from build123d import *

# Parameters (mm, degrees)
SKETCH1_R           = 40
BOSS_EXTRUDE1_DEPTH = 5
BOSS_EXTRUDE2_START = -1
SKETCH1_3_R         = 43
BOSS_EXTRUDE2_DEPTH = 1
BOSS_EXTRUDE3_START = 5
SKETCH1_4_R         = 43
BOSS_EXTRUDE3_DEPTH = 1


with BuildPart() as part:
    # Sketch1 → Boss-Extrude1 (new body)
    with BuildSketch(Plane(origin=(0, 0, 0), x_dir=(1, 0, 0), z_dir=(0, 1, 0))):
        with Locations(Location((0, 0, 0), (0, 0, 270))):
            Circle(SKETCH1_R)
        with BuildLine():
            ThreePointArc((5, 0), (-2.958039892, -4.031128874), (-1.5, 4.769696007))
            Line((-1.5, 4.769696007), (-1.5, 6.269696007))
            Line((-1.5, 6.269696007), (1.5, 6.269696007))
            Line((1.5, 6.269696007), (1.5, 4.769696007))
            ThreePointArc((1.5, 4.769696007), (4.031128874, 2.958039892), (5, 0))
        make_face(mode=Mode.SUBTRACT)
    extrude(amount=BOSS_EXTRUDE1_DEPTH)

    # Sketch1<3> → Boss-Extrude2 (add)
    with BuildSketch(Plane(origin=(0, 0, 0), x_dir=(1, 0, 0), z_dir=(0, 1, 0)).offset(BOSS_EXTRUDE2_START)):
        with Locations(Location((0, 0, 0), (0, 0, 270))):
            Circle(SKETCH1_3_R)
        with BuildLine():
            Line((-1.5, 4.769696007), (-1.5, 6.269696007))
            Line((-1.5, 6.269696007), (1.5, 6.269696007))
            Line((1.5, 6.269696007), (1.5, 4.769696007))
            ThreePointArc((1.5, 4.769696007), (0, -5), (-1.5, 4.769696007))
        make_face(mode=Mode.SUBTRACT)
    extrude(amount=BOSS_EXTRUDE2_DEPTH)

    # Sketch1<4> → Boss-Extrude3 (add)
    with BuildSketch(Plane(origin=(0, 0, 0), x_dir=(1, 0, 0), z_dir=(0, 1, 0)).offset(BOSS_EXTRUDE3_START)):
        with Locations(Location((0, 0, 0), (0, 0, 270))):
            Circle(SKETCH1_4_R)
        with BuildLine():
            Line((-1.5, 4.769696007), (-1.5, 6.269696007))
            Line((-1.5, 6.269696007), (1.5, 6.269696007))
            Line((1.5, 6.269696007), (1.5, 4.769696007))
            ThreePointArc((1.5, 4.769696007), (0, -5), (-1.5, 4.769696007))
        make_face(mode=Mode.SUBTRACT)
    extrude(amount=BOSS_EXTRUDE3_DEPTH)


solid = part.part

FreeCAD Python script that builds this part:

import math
import FreeCAD as App
import Part
import Sketcher
from FreeCAD import Vector

doc = App.newDocument("Part")
body = doc.addObject("PartDesign::Body", "Body")

sketch1 = body.newObject("Sketcher::SketchObject", "Sketch")
sketch1.AttachmentSupport = (doc.getObject("XZ_Plane"), [""])
sketch1.MapMode = "FlatFace"
sketch1.addGeometry([
    Part.Circle(Vector(0, 0, 0), Vector(0, 0, 1), 40),
    Part.ArcOfCircle(Part.Circle(Vector(0, 0, 0), Vector(0, 0, 1), 5), math.radians(-73), math.radians(0)),
    Part.ArcOfCircle(Part.Circle(Vector(0, 0, 0), Vector(0, 0, 1), 5), math.radians(0), math.radians(253)),
    Part.LineSegment(Vector(-1.5, -4.8, 0), Vector(-1.5, -6.3, 0)),
    Part.LineSegment(Vector(-1.5, -6.3, 0), Vector(1.5, -6.3, 0)),
    Part.LineSegment(Vector(1.5, -6.3, 0), Vector(1.5, -4.8, 0)),
], False)
sketch1.addConstraint([
    Sketcher.Constraint("Tangent", 1, 2, 2, 1),
    Sketcher.Constraint("Coincident", 2, 2, 3, 1),
    Sketcher.Constraint("Coincident", 3, 2, 4, 1),
    Sketcher.Constraint("Coincident", 4, 2, 5, 1),
    Sketcher.Constraint("Coincident", 5, 2, 1, 1),
    Sketcher.Constraint("Vertical", 3),
    Sketcher.Constraint("Horizontal", 4),
    Sketcher.Constraint("Vertical", 5),
    Sketcher.Constraint("Coincident", 0, 3, -1, 1),
    Sketcher.Constraint("Coincident", 1, 3, -1, 1),
    Sketcher.Constraint("Equal", 1, 2),
    Sketcher.Constraint("PointOnObject", 1, 2, -1),
    Sketcher.Constraint("Horizontal", 2, 2, 5, 2),
    Sketcher.Constraint("Diameter", 0, 80.0),
    Sketcher.Constraint("Radius", 1, 5.0),
    Sketcher.Constraint("DistanceX", 4, 1, 4, 2, 3.0),
    Sketcher.Constraint("DistanceY", 3, 2, 3, 1, 1.5),
])
pad1 = body.newObject("PartDesign::Pad", "Pad")
pad1.Profile = sketch1
pad1.Length = 5
pad1.Reversed = True

sketch2 = body.newObject("Sketcher::SketchObject", "Sketch001")
sketch2.AttachmentSupport = (doc.getObject("XZ_Plane"), [""])
sketch2.MapMode = "FlatFace"
sketch2.AttachmentOffset = App.Placement(Vector(0, 0, 1), App.Rotation())
sketch2.addGeometry([
    Part.Circle(Vector(0, 0, 0), Vector(0, 0, 1), 43),
    Part.ArcOfCircle(Part.Circle(Vector(0, 0, 0), Vector(0, 0, 1), 5), math.radians(-73), math.radians(253)),
    Part.LineSegment(Vector(-1.5, -4.8, 0), Vector(-1.5, -6.3, 0)),
    Part.LineSegment(Vector(-1.5, -6.3, 0), Vector(1.5, -6.3, 0)),
    Part.LineSegment(Vector(1.5, -6.3, 0), Vector(1.5, -4.8, 0)),
], False)
sketch2.addConstraint([
    Sketcher.Constraint("Coincident", 1, 2, 2, 1),
    Sketcher.Constraint("Coincident", 2, 2, 3, 1),
    Sketcher.Constraint("Coincident", 3, 2, 4, 1),
    Sketcher.Constraint("Coincident", 4, 2, 1, 1),
    Sketcher.Constraint("Vertical", 2),
    Sketcher.Constraint("Horizontal", 3),
    Sketcher.Constraint("Vertical", 4),
    Sketcher.Constraint("Coincident", 0, 3, -1, 1),
    Sketcher.Constraint("Coincident", 1, 3, -1, 1),
    Sketcher.Constraint("Horizontal", 1, 2, 4, 2),
    Sketcher.Constraint("Diameter", 0, 86.0),
    Sketcher.Constraint("Radius", 1, 5.0),
    Sketcher.Constraint("DistanceX", 3, 1, 3, 2, 3.0),
    Sketcher.Constraint("DistanceY", 2, 2, 2, 1, 1.5),
])
pad2 = body.newObject("PartDesign::Pad", "Pad001")
pad2.Profile = sketch2
pad2.Length = 1
pad2.Reversed = True

sketch3 = body.newObject("Sketcher::SketchObject", "Sketch002")
sketch3.AttachmentSupport = (doc.getObject("XZ_Plane"), [""])
sketch3.MapMode = "FlatFace"
sketch3.AttachmentOffset = App.Placement(Vector(0, 0, -5), App.Rotation())
sketch3.addGeometry([
    Part.Circle(Vector(0, 0, 0), Vector(0, 0, 1), 43),
    Part.ArcOfCircle(Part.Circle(Vector(0, 0, 0), Vector(0, 0, 1), 5), math.radians(-73), math.radians(253)),
    Part.LineSegment(Vector(-1.5, -4.8, 0), Vector(-1.5, -6.3, 0)),
    Part.LineSegment(Vector(-1.5, -6.3, 0), Vector(1.5, -6.3, 0)),
    Part.LineSegment(Vector(1.5, -6.3, 0), Vector(1.5, -4.8, 0)),
], False)
sketch3.addConstraint([
    Sketcher.Constraint("Coincident", 1, 2, 2, 1),
    Sketcher.Constraint("Coincident", 2, 2, 3, 1),
    Sketcher.Constraint("Coincident", 3, 2, 4, 1),
    Sketcher.Constraint("Coincident", 4, 2, 1, 1),
    Sketcher.Constraint("Vertical", 2),
    Sketcher.Constraint("Horizontal", 3),
    Sketcher.Constraint("Vertical", 4),
    Sketcher.Constraint("Coincident", 0, 3, -1, 1),
    Sketcher.Constraint("Coincident", 1, 3, -1, 1),
    Sketcher.Constraint("Horizontal", 1, 2, 4, 2),
    Sketcher.Constraint("Diameter", 0, 86.0),
    Sketcher.Constraint("Radius", 1, 5.0),
    Sketcher.Constraint("DistanceX", 3, 1, 3, 2, 3.0),
    Sketcher.Constraint("DistanceY", 2, 2, 2, 1, 1.5),
])
pad3 = body.newObject("PartDesign::Pad", "Pad002")
pad3.Profile = sketch3
pad3.Length = 1
pad3.Reversed = True

doc.recompute()
